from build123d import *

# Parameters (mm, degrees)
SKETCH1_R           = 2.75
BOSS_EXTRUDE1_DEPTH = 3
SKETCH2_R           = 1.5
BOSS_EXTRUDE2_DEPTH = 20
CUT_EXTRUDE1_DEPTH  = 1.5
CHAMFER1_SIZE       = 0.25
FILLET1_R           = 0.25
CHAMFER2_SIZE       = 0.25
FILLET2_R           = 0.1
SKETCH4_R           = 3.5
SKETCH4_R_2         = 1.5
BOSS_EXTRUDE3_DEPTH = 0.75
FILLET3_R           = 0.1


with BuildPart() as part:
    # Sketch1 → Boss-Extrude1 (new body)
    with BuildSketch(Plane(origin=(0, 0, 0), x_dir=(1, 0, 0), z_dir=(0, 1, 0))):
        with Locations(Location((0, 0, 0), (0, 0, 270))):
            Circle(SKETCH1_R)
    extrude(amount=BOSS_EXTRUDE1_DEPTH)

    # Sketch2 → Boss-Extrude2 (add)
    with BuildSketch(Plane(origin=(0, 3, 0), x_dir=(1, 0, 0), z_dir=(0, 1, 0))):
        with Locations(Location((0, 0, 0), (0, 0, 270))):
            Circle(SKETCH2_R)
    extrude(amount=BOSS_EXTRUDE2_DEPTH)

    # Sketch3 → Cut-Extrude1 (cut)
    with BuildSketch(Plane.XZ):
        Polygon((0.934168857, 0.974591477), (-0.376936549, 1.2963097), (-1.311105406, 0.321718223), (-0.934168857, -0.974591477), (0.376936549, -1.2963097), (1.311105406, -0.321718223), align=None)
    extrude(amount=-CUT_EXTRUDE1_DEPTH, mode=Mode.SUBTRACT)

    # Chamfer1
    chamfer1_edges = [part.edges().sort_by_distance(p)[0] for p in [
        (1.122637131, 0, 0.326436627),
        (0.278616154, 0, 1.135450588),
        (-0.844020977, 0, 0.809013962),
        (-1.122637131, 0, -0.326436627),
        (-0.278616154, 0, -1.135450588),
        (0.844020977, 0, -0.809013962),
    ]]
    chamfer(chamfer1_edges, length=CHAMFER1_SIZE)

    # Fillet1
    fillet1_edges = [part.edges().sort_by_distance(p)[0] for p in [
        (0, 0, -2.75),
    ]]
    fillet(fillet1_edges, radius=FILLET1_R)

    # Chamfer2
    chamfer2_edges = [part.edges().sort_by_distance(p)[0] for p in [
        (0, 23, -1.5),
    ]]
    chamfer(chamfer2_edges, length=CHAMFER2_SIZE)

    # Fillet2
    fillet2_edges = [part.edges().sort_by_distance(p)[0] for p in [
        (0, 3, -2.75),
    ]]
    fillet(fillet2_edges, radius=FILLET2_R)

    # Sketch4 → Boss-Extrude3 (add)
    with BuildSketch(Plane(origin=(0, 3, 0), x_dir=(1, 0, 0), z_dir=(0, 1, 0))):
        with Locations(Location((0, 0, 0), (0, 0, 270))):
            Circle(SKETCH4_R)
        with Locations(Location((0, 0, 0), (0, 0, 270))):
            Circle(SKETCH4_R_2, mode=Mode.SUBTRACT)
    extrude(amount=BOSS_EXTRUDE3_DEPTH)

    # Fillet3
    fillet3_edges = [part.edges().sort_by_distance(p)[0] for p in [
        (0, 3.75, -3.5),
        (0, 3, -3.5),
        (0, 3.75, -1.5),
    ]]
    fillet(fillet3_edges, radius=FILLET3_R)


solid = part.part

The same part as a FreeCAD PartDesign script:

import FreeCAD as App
import Part
import Sketcher

V = App.Vector
Q = App.Units.Quantity


def edges_at(feature, points):
    """Names of the edges that pass closest to the given points."""
    edges = feature.Shape.Edges
    near = lambda p: min(range(len(edges)), key=lambda i: edges[i].distToShape(Part.Vertex(*p))[0])
    return sorted({f"Edge{near(p) + 1}" for p in points})


def add_polygon(sketch, points):
    """Adds a closed chain of lines whose ends are joined by coincident constraints."""
    first, n = sketch.GeometryCount, len(points)
    for a, b in zip(points, points[1:] + points[:1]):
        sketch.addGeometry(Part.LineSegment(App.Vector(*a, 0), App.Vector(*b, 0)), False)
    for i in range(n):
        sketch.addConstraint(Sketcher.Constraint("Coincident", first + i, 2, first + (i + 1) % n, 1))

doc = App.newDocument("Part")
body = doc.addObject("PartDesign::Body", "Body")

sketch1 = body.newObject("Sketcher::SketchObject", "Sketch")
sketch1.AttachmentSupport = (doc.getObject("XZ_Plane"), [""])
sketch1.MapMode = "FlatFace"
sketch1.addGeometry(Part.Circle(V(0, 0, 0), V(0, 0, 1), 2.75), False)
sketch1.addConstraint(Sketcher.Constraint("Coincident", 0, 3, -1, 1))
sketch1.addConstraint(Sketcher.Constraint("Diameter", 0, Q("5.5 mm")))
pad1 = body.newObject("PartDesign::Pad", "Pad")
pad1.Profile = sketch1
pad1.Length = 3
pad1.Reversed = True

sketch2 = body.newObject("Sketcher::SketchObject", "Sketch001")
sketch2.AttachmentSupport = (doc.getObject("XZ_Plane"), [""])
sketch2.MapMode = "FlatFace"
sketch2.AttachmentOffset = App.Placement(V(0, 0, -3), App.Rotation())
sketch2.addGeometry(Part.Circle(V(0, 0, 0), V(0, 0, 1), 1.5), False)
sketch2.addConstraint(Sketcher.Constraint("Coincident", 0, 3, -1, 1))
sketch2.addConstraint(Sketcher.Constraint("Diameter", 0, Q("3 mm")))
pad2 = body.newObject("PartDesign::Pad", "Pad001")
pad2.Profile = sketch2
pad2.Length = 20
pad2.Reversed = True

sketch3 = body.newObject("Sketcher::SketchObject", "Sketch002")
sketch3.AttachmentSupport = (doc.getObject("XZ_Plane"), [""])
sketch3.MapMode = "FlatFace"
add_polygon(sketch3, [(0.934169, 0.974591), (-0.376937, 1.29631), (-1.311105, 0.321718), (-0.934169, -0.974591), (0.376937, -1.29631), (1.311105, -0.321718)])
sketch3.addConstraint(Sketcher.Constraint("Symmetric", 0, 2, 3, 2, -1, 1))
sketch3.addConstraint(Sketcher.Constraint("Symmetric", 1, 2, 4, 2, -1, 1))
sketch3.addConstraint(Sketcher.Constraint("Symmetric", 2, 2, 5, 2, -1, 1))
sketch3.addConstraint(Sketcher.Constraint("Equal", 0, 1))
sketch3.addConstraint(Sketcher.Constraint("Equal", 1, 2))
sketch3.addConstraint(Sketcher.Constraint("Distance", 0, Q("1.35 mm")))
sketch3.addConstraint(Sketcher.Constraint("DistanceY", 2, 2, 0, 2, Q("2.270901 mm")))
sketch3.addConstraint(Sketcher.Constraint("DistanceY", -1, 1, 0, 2, Q("1.29631 mm")))
sketch3.addConstraint(Sketcher.Constraint("DistanceY", -1, 1, 1, 2, Q("0.321718 mm")))
pocket1 = body.newObject("PartDesign::Pocket", "Pocket")
pocket1.Profile = sketch3
pocket1.Length = 1.5
doc.recompute()

chamfer = body.newObject("PartDesign::Chamfer", "Chamfer")
chamfer.Base = (pocket1, edges_at(pocket1, [
    (1.123, 0, 0.326),
    (0.279, 0, 1.135),
    (-0.844, 0, 0.809),
    (-1.123, 0, -0.326),
    (-0.279, 0, -1.135),
    (0.844, 0, -0.809),
]))
chamfer.Size = 0.25
doc.recompute()

fillet = body.newObject("PartDesign::Fillet", "Fillet")
fillet.Base = (chamfer, edges_at(chamfer, [(0, 0, -2.75)]))
fillet.Radius = 0.25
doc.recompute()

chamfer2 = body.newObject("PartDesign::Chamfer", "Chamfer001")
chamfer2.Base = (fillet, edges_at(fillet, [(0, 23, -1.5)]))
chamfer2.Size = 0.25
doc.recompute()

fillet2 = body.newObject("PartDesign::Fillet", "Fillet001")
fillet2.Base = (chamfer2, edges_at(chamfer2, [(0, 3, -2.75)]))
fillet2.Radius = 0.1

sketch4 = body.newObject("Sketcher::SketchObject", "Sketch003")
sketch4.AttachmentSupport = (doc.getObject("XZ_Plane"), [""])
sketch4.MapMode = "FlatFace"
sketch4.AttachmentOffset = App.Placement(V(0, 0, -3), App.Rotation())
sketch4.addGeometry(Part.Circle(V(0, 0, 0), V(0, 0, 1), 3.5), False)
sketch4.addGeometry(Part.Circle(V(0, 0, 0), V(0, 0, 1), 1.5), False)
sketch4.addConstraint(Sketcher.Constraint("Coincident", 0, 3, -1, 1))
sketch4.addConstraint(Sketcher.Constraint("Coincident", 1, 3, -1, 1))
sketch4.addConstraint(Sketcher.Constraint("Diameter", 0, Q("7 mm")))
sketch4.addConstraint(Sketcher.Constraint("Diameter", 1, Q("3 mm")))
pad3 = body.newObject("PartDesign::Pad", "Pad002")
pad3.Profile = sketch4
pad3.Length = 0.75
pad3.Reversed = True
doc.recompute()

fillet3 = body.newObject("PartDesign::Fillet", "Fillet002")
fillet3.Base = (pad3, edges_at(pad3, [(0, 3.75, -3.5), (0, 3, -3.5), (0, 3.75, -1.5)]))
fillet3.Radius = 0.1

doc.recompute()
